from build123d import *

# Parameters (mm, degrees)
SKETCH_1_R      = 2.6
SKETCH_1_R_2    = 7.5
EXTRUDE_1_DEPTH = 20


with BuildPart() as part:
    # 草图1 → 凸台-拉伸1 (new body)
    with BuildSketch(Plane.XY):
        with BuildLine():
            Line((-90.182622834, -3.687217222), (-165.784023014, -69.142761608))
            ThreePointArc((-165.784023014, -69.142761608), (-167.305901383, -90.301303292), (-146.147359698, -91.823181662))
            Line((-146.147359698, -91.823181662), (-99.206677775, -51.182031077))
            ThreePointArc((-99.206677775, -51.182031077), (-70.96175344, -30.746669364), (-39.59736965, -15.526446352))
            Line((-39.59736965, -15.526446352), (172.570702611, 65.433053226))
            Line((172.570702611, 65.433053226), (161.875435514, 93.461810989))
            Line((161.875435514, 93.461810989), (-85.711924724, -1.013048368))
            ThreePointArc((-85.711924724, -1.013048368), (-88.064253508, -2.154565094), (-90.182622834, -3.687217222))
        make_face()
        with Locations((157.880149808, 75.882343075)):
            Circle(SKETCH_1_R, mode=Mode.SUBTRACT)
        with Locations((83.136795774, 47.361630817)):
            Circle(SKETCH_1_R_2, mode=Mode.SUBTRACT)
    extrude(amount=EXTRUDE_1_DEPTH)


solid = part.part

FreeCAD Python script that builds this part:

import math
import FreeCAD as App
import Part
import Sketcher

V = App.Vector
Q = App.Units.Quantity

doc = App.newDocument("Part")
params = doc.addObject("Spreadsheet::Sheet", "Params")
for row, (alias, value) in enumerate([
    ("sketch1_diameter", "15 mm"),
    ("sketch1_radius", "15 mm"),
    ("sketch1_radius2", "200 mm"),
    ("sketch1_diameter2", "5.2 mm"),
    ("sketch1_length", "100 mm"),
    ("pad1_length", "20 mm"),
], start=1):
    params.set(f"A{row}", alias)
    params.set(f"B{row}", "=" + value)
    params.setAlias(f"B{row}", alias)

body = doc.addObject("PartDesign::Body", "Body")

sketch1 = body.newObject("Sketcher::SketchObject", "Sketch")
sketch1.AttachmentSupport = (doc.getObject("XY_Plane"), [""])
sketch1.MapMode = "FlatFace"
sketch1.addGeometry([
    Part.LineSegment(V(-90.2, -3.7, 0), V(-165.8, -69.1, 0)),
    Part.ArcOfCircle(Part.Circle(V(-156, -80.5, 0), V(0, 0, 1), 15), math.radians(131), math.radians(311)),
    Part.LineSegment(V(-146.1, -91.8, 0), V(-99.2, -51.2, 0)),
    Part.ArcOfCircle(Part.Circle(V(31.7, -202.4, 0), V(0, 0, 1), 200), math.radians(110.89), math.radians(130.89)),
    Part.LineSegment(V(-39.6, -15.5, 0), V(172.6, 65.4, 0)),
    Part.LineSegment(V(172.6, 65.4, 0), V(161.9, 93.5, 0)),
    Part.LineSegment(V(161.9, 93.5, 0), V(-85.7, -1, 0)),
    Part.ArcOfCircle(Part.Circle(V(-80.4, -15, 0), V(0, 0, 1), 15), math.radians(110.89), math.radians(130.89)),
    Part.Circle(V(83.1, 47.4, 0), V(0, 0, 1), 7.5),
    Part.Circle(V(157.9, 75.9, 0), V(0, 0, 1), 2.6),
], False)
sketch1.addConstraint([
    Sketcher.Constraint("Tangent", 0, 2, 1, 1),
    Sketcher.Constraint("Tangent", 1, 2, 2, 1),
    Sketcher.Constraint("Tangent", 2, 2, 3, 2),
    Sketcher.Constraint("Tangent", 3, 1, 4, 1),
    Sketcher.Constraint("Coincident", 4, 2, 5, 1),
    Sketcher.Constraint("Coincident", 5, 2, 6, 1),
    Sketcher.Constraint("Tangent", 6, 2, 7, 1),
    Sketcher.Constraint("Tangent", 7, 2, 0, 1),
    Sketcher.Constraint("Equal", 1, 7),
    Sketcher.Constraint("Parallel", 0, 2),
    Sketcher.Constraint("Perpendicular", 4, 5),
    Sketcher.Constraint("Perpendicular", 5, 6),
    Sketcher.Constraint("Diameter", 8, Q("15 mm")),
    Sketcher.Constraint("Radius", 1, Q("15 mm")),
    Sketcher.Constraint("Radius", 3, Q("200 mm")),
    Sketcher.Constraint("Diameter", 9, Q("5.2 mm")),
    Sketcher.Constraint("Distance", 0, Q("100 mm")),
    Sketcher.Constraint("Distance", 5, Q("30 mm")),
    Sketcher.Constraint("Distance", 6, Q("265 mm")),
    Sketcher.Constraint("Distance", 2, Q("62.089699 mm")),
    Sketcher.Constraint("DistanceX", 1, 3, 7, 3, Q("75.6014 mm")),
    Sketcher.Constraint("DistanceX", 1, 3, -1, 1, Q("155.965691 mm")),
    Sketcher.Constraint("DistanceY", 1, 3, -1, 1, Q("80.482972 mm")),
    Sketcher.Constraint("DistanceY", -1, 1, 8, 3, Q("47.361631 mm")),
    Sketcher.Constraint("DistanceX", -1, 1, 9, 3, Q("157.88015 mm")),
    Sketcher.Constraint("DistanceY", 7, 3, 9, 3, Q("90.90977 mm")),
    Sketcher.Constraint("DistanceX", 0, 2, 8, 3, Q("248.920819 mm")),
])
sketch1.setExpression("Constraints[12]", "Params.sketch1_diameter")
sketch1.setExpression("Constraints[13]", "Params.sketch1_radius")
sketch1.setExpression("Constraints[14]", "Params.sketch1_radius2")
sketch1.setExpression("Constraints[15]", "Params.sketch1_diameter2")
sketch1.setExpression("Constraints[16]", "Params.sketch1_length")
pad1 = body.newObject("PartDesign::Pad", "Pad")
pad1.Profile = sketch1
pad1.setExpression("Length", "Params.pad1_length")

doc.recompute()
